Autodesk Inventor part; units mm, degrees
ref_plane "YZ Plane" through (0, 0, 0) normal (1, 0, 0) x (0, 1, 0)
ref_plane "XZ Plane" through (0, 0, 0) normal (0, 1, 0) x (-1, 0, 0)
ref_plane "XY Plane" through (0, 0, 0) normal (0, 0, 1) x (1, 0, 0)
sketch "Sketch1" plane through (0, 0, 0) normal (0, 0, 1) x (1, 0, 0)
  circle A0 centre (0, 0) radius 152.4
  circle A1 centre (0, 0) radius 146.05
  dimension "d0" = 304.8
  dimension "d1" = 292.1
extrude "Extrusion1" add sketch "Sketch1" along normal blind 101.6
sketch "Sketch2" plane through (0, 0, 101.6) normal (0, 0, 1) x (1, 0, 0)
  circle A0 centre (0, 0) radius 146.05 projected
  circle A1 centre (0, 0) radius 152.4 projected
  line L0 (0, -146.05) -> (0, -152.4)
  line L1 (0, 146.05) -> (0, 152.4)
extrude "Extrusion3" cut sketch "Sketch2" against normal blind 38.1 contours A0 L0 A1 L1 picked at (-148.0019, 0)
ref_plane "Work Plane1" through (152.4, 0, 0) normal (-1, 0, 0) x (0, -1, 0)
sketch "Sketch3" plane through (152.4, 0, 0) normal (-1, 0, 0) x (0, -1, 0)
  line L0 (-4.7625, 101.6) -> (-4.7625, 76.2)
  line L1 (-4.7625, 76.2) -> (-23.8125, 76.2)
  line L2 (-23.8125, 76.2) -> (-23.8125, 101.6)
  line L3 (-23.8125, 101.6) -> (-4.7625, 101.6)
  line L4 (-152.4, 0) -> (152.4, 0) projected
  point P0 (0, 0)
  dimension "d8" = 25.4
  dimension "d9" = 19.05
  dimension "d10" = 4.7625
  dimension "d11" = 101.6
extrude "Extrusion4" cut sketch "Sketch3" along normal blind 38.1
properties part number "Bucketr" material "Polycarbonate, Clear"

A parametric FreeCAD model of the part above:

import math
import FreeCAD as App
import Part
import Sketcher
from FreeCAD import Vector
Q = App.Units.Quantity

doc = App.newDocument("Part")
body = doc.addObject("PartDesign::Body", "Body")

# Sketch on XY plane
sketch1 = body.newObject("Sketcher::SketchObject", "Sketch")
sketch1.AttachmentSupport = (doc.getObject("XY_Plane"), [""])
sketch1.MapMode = "FlatFace"
sketch1.addGeometry([
    Part.Circle(Vector(0, 0, 0), Vector(0, 0, 1), 152),
    Part.Circle(Vector(0, 0, 0), Vector(0, 0, 1), 146),
], False)
sketch1.addConstraint([
    Sketcher.Constraint("Coincident", 0, 3, -1, 1),
    Sketcher.Constraint("Coincident", 1, 3, -1, 1),
    Sketcher.Constraint("Diameter", 0, Q("12 in")),
    Sketcher.Constraint("Diameter", 1, Q("11.5 in")),
])
pad1 = body.newObject("PartDesign::Pad", "Pad")
pad1.Profile = sketch1
pad1.Length = Q("4 in")

# Sketch on XY plane
sketch2 = body.newObject("Sketcher::SketchObject", "Sketch001")
sketch2.AttachmentSupport = (doc.getObject("XY_Plane"), [""])
sketch2.MapMode = "FlatFace"
sketch2.AttachmentOffset = App.Placement(Vector(0, 0, 4 * 25.4), App.Rotation())
sketch2.addGeometry([
    Part.ArcOfCircle(Part.Circle(Vector(0, 0, 0), Vector(0, 0, 1), 146), math.radians(90), math.radians(270)),
    Part.LineSegment(Vector(0, 146, 0), Vector(0, 152, 0)),
    Part.ArcOfCircle(Part.Circle(Vector(0, 0, 0), Vector(0, 0, 1), 152), math.radians(90), math.radians(270)),
    Part.LineSegment(Vector(0, -152, 0), Vector(0, -146, 0)),
], False)
sketch2.addConstraint([
    Sketcher.Constraint("Coincident", 0, 1, 1, 1),
    Sketcher.Constraint("Coincident", 1, 2, 2, 1),
    Sketcher.Constraint("Coincident", 2, 2, 3, 1),
    Sketcher.Constraint("Coincident", 3, 2, 0, 2),
    Sketcher.Constraint("Vertical", 1),
    Sketcher.Constraint("Vertical", 3),
    Sketcher.Constraint("Coincident", 0, 3, -1, 1),
    Sketcher.Constraint("Coincident", 2, 3, -1, 1),
    Sketcher.Constraint("PointOnObject", 0, 1, -2),
    Sketcher.Constraint("PointOnObject", 2, 2, -2),
    Sketcher.Constraint("Radius", 2, Q("6 in")),
    Sketcher.Constraint("Radius", 0, Q("5.75 in")),
])
pocket1 = body.newObject("PartDesign::Pocket", "Pocket")
pocket1.Profile = sketch2
pocket1.Length = Q("1.5 in")

# Sketch on YZ plane
sketch3 = body.newObject("Sketcher::SketchObject", "Sketch002")
sketch3.AttachmentSupport = (doc.getObject("YZ_Plane"), [""])
sketch3.MapMode = "FlatFace"
sketch3.AttachmentOffset = App.Placement(Vector(0, 0, 6 * 25.4), App.Rotation())
sketch3.addGeometry([
    Part.LineSegment(Vector(5, 76, 0), Vector(5, 102, 0)),
    Part.LineSegment(Vector(5, 102, 0), Vector(24, 102, 0)),
    Part.LineSegment(Vector(24, 102, 0), Vector(24, 76, 0)),
    Part.LineSegment(Vector(24, 76, 0), Vector(5, 76, 0)),
], False)
sketch3.addConstraint([
    Sketcher.Constraint("Coincident", 0, 2, 1, 1),
    Sketcher.Constraint("Coincident", 1, 2, 2, 1),
    Sketcher.Constraint("Coincident", 2, 2, 3, 1),
    Sketcher.Constraint("Coincident", 3, 2, 0, 1),
    Sketcher.Constraint("Vertical", 0),
    Sketcher.Constraint("Horizontal", 1),
    Sketcher.Constraint("Vertical", 2),
    Sketcher.Constraint("Horizontal", 3),
    Sketcher.Constraint("DistanceY", 0, 1, 0, 2, Q("1 in")),
    Sketcher.Constraint("DistanceY", -1, 1, 0, 2, Q("4 in")),
    Sketcher.Constraint("DistanceX", 1, 1, 1, 2, Q("0.75 in")),
    Sketcher.Constraint("DistanceX", -1, 1, 0, 2, Q("0.1875 in")),
])
pocket2 = body.newObject("PartDesign::Pocket", "Pocket001")
pocket2.Profile = sketch3
pocket2.Length = Q("1.5 in")

doc.recompute()
